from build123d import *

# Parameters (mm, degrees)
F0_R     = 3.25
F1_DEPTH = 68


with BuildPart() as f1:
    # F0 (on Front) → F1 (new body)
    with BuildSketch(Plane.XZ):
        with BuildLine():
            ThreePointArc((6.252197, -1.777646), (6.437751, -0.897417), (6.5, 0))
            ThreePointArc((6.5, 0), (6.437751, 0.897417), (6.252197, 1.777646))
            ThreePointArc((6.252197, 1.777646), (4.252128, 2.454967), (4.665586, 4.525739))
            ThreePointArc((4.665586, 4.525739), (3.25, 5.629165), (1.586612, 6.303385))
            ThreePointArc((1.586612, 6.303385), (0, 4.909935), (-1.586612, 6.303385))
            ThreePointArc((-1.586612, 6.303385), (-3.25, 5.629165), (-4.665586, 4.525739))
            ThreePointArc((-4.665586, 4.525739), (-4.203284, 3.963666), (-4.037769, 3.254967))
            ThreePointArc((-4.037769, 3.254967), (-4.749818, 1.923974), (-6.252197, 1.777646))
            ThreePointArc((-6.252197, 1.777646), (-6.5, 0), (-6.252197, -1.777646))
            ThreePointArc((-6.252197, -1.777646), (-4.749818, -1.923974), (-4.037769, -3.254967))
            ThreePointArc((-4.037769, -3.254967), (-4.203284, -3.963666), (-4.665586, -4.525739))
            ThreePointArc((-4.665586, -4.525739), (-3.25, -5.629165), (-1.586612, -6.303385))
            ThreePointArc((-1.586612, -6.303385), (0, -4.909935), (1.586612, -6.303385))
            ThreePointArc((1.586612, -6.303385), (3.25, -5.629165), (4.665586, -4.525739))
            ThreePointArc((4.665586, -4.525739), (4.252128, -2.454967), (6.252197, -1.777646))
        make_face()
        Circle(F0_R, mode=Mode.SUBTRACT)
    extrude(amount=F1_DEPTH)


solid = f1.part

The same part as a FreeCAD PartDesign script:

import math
import FreeCAD as App
import Part
import Sketcher

V = App.Vector

doc = App.newDocument("Part")
params = doc.addObject("Spreadsheet::Sheet", "Params")
for row, (alias, value) in enumerate([
    ("sketch1_diameter", "6.5 mm"),
    ("sketch1_radius", "1.6 mm"),
    ("pad1_length", "68 mm"),
], start=1):
    params.set(f"A{row}", alias)
    params.set(f"B{row}", "=" + value)
    params.setAlias(f"B{row}", alias)

body = doc.addObject("PartDesign::Body", "Body")

# Sketch on XZ plane
sketch1 = doc.addObject("Sketcher::SketchObject", "Sketch")
body.addObject(sketch1)
sketch1.AttachmentSupport = (doc.XZ_Plane, [""])
sketch1.MapMode = "FlatFace"
sketch1.addGeometry(Part.ArcOfCircle(Part.Circle(V(-0.000009, 0.000003, 0), V(0, 0, 1), 6.500009), math.radians(-15.871699), math.radians(-0.000029)), False)
sketch1.addGeometry(Part.ArcOfCircle(Part.Circle(V(-0.000009, -0.000003, 0), V(0, 0, 1), 6.500009), math.radians(0.000029), math.radians(15.871699)), False)
sketch1.addGeometry(Part.ArcOfCircle(Part.Circle(V(5.637769, 3.254967, 0), V(0, 0, 1), 1.6), math.radians(127.417187), math.radians(292.582775)), False)
sketch1.addGeometry(Part.ArcOfCircle(Part.Circle(V(-0.000004, -0.000008, 0), V(0, 0, 1), 6.500009), math.radians(44.128335), math.radians(75.871678)), False)
sketch1.addGeometry(Part.ArcOfCircle(Part.Circle(V(0, 6.509935, 0), V(0, 0, 1), 1.6), math.radians(-172.582767), math.radians(-7.417233)), False)
sketch1.addGeometry(Part.ArcOfCircle(Part.Circle(V(0.000004, -0.000008, 0), V(0, 0, 1), 6.500009), math.radians(104.128322), math.radians(135.871665)), False)
sketch1.addGeometry(Part.ArcOfCircle(Part.Circle(V(-5.637767, 3.254969, 0), V(0, 0, 1), 1.599998), math.radians(-0.000055), math.radians(52.582832)), False)
sketch1.addGeometry(Part.ArcOfCircle(Part.Circle(V(-5.637769, 3.254967, 0), V(0, 0, 1), 1.6), math.radians(-112.582762), math.radians(-0.000008)), False)
sketch1.addGeometry(Part.ArcOfCircle(Part.Circle(V(-0.000015, 0, 0), V(0, 0, 1), 6.499985), math.radians(164.128272), math.radians(195.871728)), False)
sketch1.addGeometry(Part.ArcOfCircle(Part.Circle(V(-5.637769, -3.254967, 0), V(0, 0, 1), 1.6), math.radians(0.000008), math.radians(112.582762)), False)
sketch1.addGeometry(Part.ArcOfCircle(Part.Circle(V(-5.637767, -3.254969, 0), V(0, 0, 1), 1.599998), math.radians(-52.582832), math.radians(0.000055)), False)
sketch1.addGeometry(Part.ArcOfCircle(Part.Circle(V(0.000004, 0.000008, 0), V(0, 0, 1), 6.500009), math.radians(-135.871665), math.radians(-104.128322)), False)
sketch1.addGeometry(Part.ArcOfCircle(Part.Circle(V(0, -6.509935, 0), V(0, 0, 1), 1.6), math.radians(7.417233), math.radians(172.582767)), False)
sketch1.addGeometry(Part.ArcOfCircle(Part.Circle(V(-0.000004, 0.000008, 0), V(0, 0, 1), 6.500009), math.radians(-75.871678), math.radians(-44.128335)), False)
sketch1.addGeometry(Part.ArcOfCircle(Part.Circle(V(5.637769, -3.254967, 0), V(0, 0, 1), 1.6), math.radians(67.417225), math.radians(232.582813)), False)
sketch1.addGeometry(Part.Circle(V(0, 0, 0), V(0, 0, 1), 3.25), False)
sketch1.addConstraint(Sketcher.Constraint("Tangent", 0, 2, 1, 1))
sketch1.addConstraint(Sketcher.Constraint("Coincident", 1, 2, 2, 2))
sketch1.addConstraint(Sketcher.Constraint("Coincident", 2, 1, 3, 1))
sketch1.addConstraint(Sketcher.Constraint("Coincident", 3, 2, 4, 2))
sketch1.addConstraint(Sketcher.Constraint("Coincident", 4, 1, 5, 1))
sketch1.addConstraint(Sketcher.Constraint("Coincident", 5, 2, 6, 2))
sketch1.addConstraint(Sketcher.Constraint("Tangent", 6, 1, 7, 2))
sketch1.addConstraint(Sketcher.Constraint("Coincident", 7, 1, 8, 1))
sketch1.addConstraint(Sketcher.Constraint("Coincident", 8, 2, 9, 2))
sketch1.addConstraint(Sketcher.Constraint("Tangent", 9, 1, 10, 2))
sketch1.addConstraint(Sketcher.Constraint("Coincident", 10, 1, 11, 1))
sketch1.addConstraint(Sketcher.Constraint("Coincident", 11, 2, 12, 2))
sketch1.addConstraint(Sketcher.Constraint("Coincident", 12, 1, 13, 1))
sketch1.addConstraint(Sketcher.Constraint("Coincident", 13, 2, 14, 2))
sketch1.addConstraint(Sketcher.Constraint("Coincident", 14, 1, 0, 1))
sketch1.addConstraint(Sketcher.Constraint("Coincident", 0, 3, -1, 1))
sketch1.addConstraint(Sketcher.Constraint("Coincident", 3, 3, -1, 1))
sketch1.addConstraint(Sketcher.Constraint("Coincident", 5, 3, -1, 1))
sketch1.addConstraint(Sketcher.Constraint("Coincident", 11, 3, -1, 1))
sketch1.addConstraint(Sketcher.Constraint("Coincident", 13, 3, -1, 1))
sketch1.addConstraint(Sketcher.Constraint("Coincident", 15, 3, -1, 1))
sketch1.addConstraint(Sketcher.Constraint("Coincident", 8, 3, 0, 3))
sketch1.addConstraint(Sketcher.Constraint("Equal", 0, 1))
sketch1.addConstraint(Sketcher.Constraint("Equal", 1, 3))
sketch1.addConstraint(Sketcher.Constraint("Equal", 2, 4))
sketch1.addConstraint(Sketcher.Constraint("Equal", 3, 5))
sketch1.addConstraint(Sketcher.Constraint("Equal", 4, 7))
sketch1.addConstraint(Sketcher.Constraint("Equal", 7, 9))
sketch1.addConstraint(Sketcher.Constraint("Equal", 6, 10))
sketch1.addConstraint(Sketcher.Constraint("Equal", 5, 11))
sketch1.addConstraint(Sketcher.Constraint("Equal", 9, 12))
sketch1.addConstraint(Sketcher.Constraint("Equal", 11, 13))
sketch1.addConstraint(Sketcher.Constraint("Equal", 12, 14))
sketch1.addConstraint(Sketcher.Constraint("Symmetric", 2, 3, 9, 3, -1, 1))
sketch1.addConstraint(Sketcher.Constraint("Symmetric", 4, 3, 12, 3, -1, 1))
sketch1.addConstraint(Sketcher.Constraint("Symmetric", 6, 3, 14, 3, -1, 1))
sketch1.addConstraint(Sketcher.Constraint("Symmetric", 7, 1, 14, 1, -1, 1))
sketch1.addConstraint(Sketcher.Constraint("Symmetric", 2, 3, 6, 3, -2))
sketch1.addConstraint(Sketcher.Constraint("PointOnObject", 4, 3, -2))
sketch1.addConstraint(Sketcher.Constraint("PointOnObject", 0, 2, -1))
sketch1.addConstraint(Sketcher.Constraint("Horizontal", 7, 3, 6, 1))
sketch1.addConstraint(Sketcher.Constraint("Horizontal", 14, 3, 9, 1))
sketch1.addConstraint(Sketcher.Constraint("Diameter", 15, 6.5))
sketch1.addConstraint(Sketcher.Constraint("Radius", 2, 1.6))
sketch1.addConstraint(Sketcher.Constraint("DistanceX", -1, 1, 0, 2, 6.5))
sketch1.addConstraint(Sketcher.Constraint("DistanceX", -1, 1, 2, 3, 5.637769))
sketch1.addConstraint(Sketcher.Constraint("DistanceY", -1, 1, 6, 3, 3.254969))
sketch1.addConstraint(Sketcher.Constraint("DistanceX", 4, 1, -1, 1, 1.586612))
sketch1.setExpression("Constraints[42]", "Params.sketch1_diameter")
sketch1.setExpression("Constraints[43]", "Params.sketch1_radius")
pad1 = doc.addObject("PartDesign::Pad", "Pad")
body.addObject(pad1)
pad1.Profile = sketch1
pad1.setExpression("Length", "Params.pad1_length")

doc.recompute()
